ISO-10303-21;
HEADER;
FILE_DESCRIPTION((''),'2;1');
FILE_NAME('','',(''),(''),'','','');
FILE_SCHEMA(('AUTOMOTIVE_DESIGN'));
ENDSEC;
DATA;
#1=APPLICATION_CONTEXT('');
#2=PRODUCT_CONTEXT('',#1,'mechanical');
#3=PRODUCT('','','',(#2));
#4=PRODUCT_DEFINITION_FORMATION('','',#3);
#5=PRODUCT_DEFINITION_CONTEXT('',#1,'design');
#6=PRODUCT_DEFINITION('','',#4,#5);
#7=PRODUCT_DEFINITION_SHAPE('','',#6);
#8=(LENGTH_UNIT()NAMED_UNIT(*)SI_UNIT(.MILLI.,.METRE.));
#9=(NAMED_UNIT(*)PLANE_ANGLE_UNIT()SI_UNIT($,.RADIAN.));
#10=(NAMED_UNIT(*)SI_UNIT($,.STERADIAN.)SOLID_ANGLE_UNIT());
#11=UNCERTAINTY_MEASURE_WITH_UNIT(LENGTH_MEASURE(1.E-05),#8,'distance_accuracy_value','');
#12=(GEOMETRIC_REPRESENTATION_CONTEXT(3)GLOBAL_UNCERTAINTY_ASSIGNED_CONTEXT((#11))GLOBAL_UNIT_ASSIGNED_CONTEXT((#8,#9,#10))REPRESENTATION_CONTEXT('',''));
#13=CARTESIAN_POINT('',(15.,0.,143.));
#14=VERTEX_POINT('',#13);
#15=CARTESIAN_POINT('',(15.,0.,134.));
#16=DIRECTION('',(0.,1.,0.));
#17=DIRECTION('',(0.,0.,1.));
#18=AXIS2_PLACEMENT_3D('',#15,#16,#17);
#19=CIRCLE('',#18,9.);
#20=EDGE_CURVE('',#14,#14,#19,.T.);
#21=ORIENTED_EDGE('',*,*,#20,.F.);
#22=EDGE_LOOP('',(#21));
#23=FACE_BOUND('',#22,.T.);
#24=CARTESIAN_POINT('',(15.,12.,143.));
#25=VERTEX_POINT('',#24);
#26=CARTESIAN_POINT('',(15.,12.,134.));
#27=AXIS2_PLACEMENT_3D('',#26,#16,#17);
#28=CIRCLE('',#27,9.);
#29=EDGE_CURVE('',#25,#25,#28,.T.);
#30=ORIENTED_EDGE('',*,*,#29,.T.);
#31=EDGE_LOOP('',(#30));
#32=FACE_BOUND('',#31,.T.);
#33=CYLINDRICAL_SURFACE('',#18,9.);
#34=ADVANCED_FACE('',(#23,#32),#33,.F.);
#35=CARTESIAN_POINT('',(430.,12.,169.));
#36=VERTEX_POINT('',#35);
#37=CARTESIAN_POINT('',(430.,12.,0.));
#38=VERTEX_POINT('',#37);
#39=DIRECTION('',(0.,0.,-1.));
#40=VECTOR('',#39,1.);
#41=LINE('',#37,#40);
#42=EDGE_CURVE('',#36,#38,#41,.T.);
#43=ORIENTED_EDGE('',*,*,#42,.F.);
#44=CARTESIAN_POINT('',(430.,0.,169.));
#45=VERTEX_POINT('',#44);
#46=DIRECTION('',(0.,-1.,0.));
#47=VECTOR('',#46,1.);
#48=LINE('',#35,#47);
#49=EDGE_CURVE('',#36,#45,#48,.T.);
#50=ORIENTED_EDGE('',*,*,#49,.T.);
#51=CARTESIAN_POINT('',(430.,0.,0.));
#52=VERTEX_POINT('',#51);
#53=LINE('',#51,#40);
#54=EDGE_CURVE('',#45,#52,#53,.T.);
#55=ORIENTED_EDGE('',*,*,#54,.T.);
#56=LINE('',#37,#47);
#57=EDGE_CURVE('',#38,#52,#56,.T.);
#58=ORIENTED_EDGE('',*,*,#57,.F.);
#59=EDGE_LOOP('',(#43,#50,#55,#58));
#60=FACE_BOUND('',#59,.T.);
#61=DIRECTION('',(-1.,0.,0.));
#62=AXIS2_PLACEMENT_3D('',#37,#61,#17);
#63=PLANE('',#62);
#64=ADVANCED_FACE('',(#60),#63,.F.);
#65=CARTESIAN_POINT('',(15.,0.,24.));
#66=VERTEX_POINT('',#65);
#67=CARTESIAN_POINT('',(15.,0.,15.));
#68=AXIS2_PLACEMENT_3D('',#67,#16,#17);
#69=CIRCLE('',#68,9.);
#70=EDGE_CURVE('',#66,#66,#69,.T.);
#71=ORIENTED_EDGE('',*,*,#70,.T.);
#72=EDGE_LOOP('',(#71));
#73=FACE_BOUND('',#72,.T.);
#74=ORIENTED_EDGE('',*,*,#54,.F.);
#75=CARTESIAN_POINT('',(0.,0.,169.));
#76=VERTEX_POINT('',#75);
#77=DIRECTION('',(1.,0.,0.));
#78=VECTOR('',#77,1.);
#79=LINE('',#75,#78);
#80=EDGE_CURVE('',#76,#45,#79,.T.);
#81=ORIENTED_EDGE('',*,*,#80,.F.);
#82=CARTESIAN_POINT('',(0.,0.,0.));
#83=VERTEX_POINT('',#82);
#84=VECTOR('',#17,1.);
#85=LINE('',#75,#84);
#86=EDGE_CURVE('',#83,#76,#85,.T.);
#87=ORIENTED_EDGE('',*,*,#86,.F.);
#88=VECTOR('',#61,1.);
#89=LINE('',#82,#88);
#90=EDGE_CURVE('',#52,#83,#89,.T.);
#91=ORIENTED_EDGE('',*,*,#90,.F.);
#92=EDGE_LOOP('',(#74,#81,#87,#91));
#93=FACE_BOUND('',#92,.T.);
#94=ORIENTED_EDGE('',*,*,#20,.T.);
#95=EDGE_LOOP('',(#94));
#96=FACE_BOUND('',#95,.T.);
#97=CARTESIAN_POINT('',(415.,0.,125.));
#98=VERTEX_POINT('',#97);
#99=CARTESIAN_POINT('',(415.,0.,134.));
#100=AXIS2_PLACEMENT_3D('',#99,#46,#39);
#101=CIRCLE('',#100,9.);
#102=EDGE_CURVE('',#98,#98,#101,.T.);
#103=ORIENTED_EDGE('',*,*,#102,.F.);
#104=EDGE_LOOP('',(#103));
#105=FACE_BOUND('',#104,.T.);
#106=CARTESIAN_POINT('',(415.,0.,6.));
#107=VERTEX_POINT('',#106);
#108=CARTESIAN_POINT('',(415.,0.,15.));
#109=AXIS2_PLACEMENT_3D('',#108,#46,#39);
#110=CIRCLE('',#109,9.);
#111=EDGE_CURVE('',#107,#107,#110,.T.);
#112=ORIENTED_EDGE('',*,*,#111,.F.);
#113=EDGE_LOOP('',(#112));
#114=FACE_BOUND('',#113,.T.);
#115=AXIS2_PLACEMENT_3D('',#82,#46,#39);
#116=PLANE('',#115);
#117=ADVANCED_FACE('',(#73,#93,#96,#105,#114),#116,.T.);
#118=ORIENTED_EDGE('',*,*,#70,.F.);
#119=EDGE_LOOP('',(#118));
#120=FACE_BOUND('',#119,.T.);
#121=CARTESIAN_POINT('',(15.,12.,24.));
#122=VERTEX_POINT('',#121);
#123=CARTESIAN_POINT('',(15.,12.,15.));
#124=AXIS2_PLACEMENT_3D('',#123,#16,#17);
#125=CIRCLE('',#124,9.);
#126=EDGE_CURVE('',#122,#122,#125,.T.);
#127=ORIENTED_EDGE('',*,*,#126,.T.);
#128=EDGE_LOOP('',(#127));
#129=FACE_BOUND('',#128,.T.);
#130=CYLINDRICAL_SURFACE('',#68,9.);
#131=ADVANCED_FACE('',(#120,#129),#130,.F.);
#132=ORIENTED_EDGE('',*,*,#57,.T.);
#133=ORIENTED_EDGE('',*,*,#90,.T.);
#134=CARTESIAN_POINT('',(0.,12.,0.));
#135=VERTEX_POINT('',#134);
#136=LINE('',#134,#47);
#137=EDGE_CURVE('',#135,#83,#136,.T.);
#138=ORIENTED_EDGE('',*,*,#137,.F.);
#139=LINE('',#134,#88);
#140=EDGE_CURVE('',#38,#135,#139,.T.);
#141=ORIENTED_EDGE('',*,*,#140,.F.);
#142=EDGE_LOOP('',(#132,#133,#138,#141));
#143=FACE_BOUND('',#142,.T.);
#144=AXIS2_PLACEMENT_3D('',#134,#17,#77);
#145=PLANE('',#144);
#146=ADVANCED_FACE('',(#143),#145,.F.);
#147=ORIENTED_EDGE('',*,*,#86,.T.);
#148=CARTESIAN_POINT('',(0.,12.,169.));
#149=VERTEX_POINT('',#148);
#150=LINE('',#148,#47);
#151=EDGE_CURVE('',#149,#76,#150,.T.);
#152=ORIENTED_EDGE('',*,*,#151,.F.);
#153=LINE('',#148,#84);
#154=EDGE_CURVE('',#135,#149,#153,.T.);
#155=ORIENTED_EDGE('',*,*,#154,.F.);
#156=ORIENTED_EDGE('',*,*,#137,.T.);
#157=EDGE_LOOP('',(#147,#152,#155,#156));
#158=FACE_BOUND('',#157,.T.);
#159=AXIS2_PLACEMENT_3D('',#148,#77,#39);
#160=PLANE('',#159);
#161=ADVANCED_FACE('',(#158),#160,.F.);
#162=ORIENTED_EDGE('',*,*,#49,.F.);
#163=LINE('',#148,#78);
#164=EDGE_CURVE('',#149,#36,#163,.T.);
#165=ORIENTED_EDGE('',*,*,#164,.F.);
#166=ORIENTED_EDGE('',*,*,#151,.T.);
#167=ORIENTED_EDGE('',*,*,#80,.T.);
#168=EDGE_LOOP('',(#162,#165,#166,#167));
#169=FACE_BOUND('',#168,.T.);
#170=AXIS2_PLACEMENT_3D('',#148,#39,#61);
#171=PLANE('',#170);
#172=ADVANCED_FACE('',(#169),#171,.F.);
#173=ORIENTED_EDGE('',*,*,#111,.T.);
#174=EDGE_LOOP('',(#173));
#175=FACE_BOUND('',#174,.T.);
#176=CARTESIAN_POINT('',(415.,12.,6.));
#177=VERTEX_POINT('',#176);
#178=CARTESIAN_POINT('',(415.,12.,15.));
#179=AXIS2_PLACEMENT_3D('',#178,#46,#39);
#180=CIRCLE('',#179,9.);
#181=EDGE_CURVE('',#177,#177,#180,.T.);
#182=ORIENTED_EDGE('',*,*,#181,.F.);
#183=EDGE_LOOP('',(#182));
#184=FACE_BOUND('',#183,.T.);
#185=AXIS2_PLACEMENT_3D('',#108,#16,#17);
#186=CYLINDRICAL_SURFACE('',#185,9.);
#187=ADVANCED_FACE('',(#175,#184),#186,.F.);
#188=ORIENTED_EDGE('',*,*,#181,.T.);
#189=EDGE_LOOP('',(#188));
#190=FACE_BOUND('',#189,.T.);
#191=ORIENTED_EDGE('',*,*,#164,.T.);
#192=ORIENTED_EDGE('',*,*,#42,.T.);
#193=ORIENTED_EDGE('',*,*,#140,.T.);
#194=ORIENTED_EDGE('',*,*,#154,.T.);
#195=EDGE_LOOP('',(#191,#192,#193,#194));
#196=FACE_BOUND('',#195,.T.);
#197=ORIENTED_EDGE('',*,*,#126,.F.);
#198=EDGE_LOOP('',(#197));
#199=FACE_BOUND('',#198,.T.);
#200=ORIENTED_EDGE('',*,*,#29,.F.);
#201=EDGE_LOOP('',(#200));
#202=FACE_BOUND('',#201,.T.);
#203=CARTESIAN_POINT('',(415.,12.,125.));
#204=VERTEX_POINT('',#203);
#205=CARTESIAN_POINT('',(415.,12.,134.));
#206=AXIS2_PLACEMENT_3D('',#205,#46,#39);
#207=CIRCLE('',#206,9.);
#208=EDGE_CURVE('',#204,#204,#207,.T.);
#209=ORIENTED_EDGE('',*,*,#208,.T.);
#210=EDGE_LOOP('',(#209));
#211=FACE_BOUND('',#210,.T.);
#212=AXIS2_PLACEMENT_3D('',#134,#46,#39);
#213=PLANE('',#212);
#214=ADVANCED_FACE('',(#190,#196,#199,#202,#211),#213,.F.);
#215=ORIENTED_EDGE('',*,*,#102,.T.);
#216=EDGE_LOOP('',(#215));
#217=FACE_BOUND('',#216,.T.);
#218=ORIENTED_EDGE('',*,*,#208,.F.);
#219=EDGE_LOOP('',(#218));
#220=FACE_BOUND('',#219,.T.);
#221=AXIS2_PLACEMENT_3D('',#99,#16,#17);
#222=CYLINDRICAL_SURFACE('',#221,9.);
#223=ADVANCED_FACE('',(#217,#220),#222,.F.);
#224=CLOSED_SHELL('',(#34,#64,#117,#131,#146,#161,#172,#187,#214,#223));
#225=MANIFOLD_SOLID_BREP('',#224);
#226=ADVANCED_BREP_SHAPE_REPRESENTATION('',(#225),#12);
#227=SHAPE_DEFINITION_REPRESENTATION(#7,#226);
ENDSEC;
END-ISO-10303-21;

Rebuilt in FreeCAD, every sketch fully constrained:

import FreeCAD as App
import Part
import Sketcher

V = App.Vector
Q = App.Units.Quantity

doc = App.newDocument("Part")
body = doc.addObject("PartDesign::Body", "Body")

sketch1 = doc.addObject("Sketcher::SketchObject", "Sketch")
body.addObject(sketch1)
sketch1.AttachmentSupport = (doc.XZ_Plane, [""])
sketch1.MapMode = "FlatFace"
sketch1.addGeometry(Part.LineSegment(V(0, 0, 0), V(0, 169, 0)), False)
sketch1.addGeometry(Part.LineSegment(V(0, 169, 0), V(430, 169, 0)), False)
sketch1.addGeometry(Part.LineSegment(V(430, 169, 0), V(430, 0, 0)), False)
sketch1.addGeometry(Part.LineSegment(V(430, 0, 0), V(0, 0, 0)), False)
sketch1.addConstraint(Sketcher.Constraint("Coincident", 0, 2, 1, 1))
sketch1.addConstraint(Sketcher.Constraint("Coincident", 1, 2, 2, 1))
sketch1.addConstraint(Sketcher.Constraint("Coincident", 2, 2, 3, 1))
sketch1.addConstraint(Sketcher.Constraint("Coincident", 3, 2, 0, 1))
sketch1.addConstraint(Sketcher.Constraint("Vertical", 0))
sketch1.addConstraint(Sketcher.Constraint("Horizontal", 1))
sketch1.addConstraint(Sketcher.Constraint("Vertical", 2))
sketch1.addConstraint(Sketcher.Constraint("Horizontal", 3))
sketch1.addConstraint(Sketcher.Constraint("Coincident", 3, 2, -1, 1))
sketch1.addConstraint(Sketcher.Constraint("DistanceX", 1, 1, 1, 2, Q("430 mm")))
sketch1.addConstraint(Sketcher.Constraint("DistanceY", 0, 1, 0, 2, Q("169 mm")))
pad1 = doc.addObject("PartDesign::Pad", "Pad")
body.addObject(pad1)
pad1.Profile = sketch1
pad1.Length = 12
pad1.Reversed = True

sketch2 = doc.addObject("Sketcher::SketchObject", "Sketch001")
body.addObject(sketch2)
sketch2.AttachmentSupport = (doc.XZ_Plane, [""])
sketch2.MapMode = "FlatFace"
sketch2.AttachmentOffset = App.Placement(V(0, 0, -12), App.Rotation())
sketch2.addGeometry(Part.Circle(V(15, 15, 0), V(0, 0, 1), 9), False)
sketch2.addGeometry(Part.Circle(V(15, 134, 0), V(0, 0, 1), 9), False)
sketch2.addGeometry(Part.Circle(V(415, 134, 0), V(0, 0, 1), 9), False)
sketch2.addGeometry(Part.Circle(V(415, 15, 0), V(0, 0, 1), 9), False)
sketch2.addConstraint(Sketcher.Constraint("Equal", 0, 1))
sketch2.addConstraint(Sketcher.Constraint("Equal", 1, 2))
sketch2.addConstraint(Sketcher.Constraint("Equal", 2, 3))
sketch2.addConstraint(Sketcher.Constraint("Horizontal", 1, 3, 2, 3))
sketch2.addConstraint(Sketcher.Constraint("Horizontal", 0, 3, 3, 3))
sketch2.addConstraint(Sketcher.Constraint("Vertical", 0, 3, 1, 3))
sketch2.addConstraint(Sketcher.Constraint("Vertical", 2, 3, 3, 3))
sketch2.addConstraint(Sketcher.Constraint("Diameter", 0, Q("18 mm")))
sketch2.addConstraint(Sketcher.Constraint("DistanceX", -1, 1, 0, 3, Q("15 mm")))
sketch2.addConstraint(Sketcher.Constraint("DistanceY", -1, 1, 0, 3, Q("15 mm")))
sketch2.addConstraint(Sketcher.Constraint("DistanceY", -1, 1, 1, 3, Q("134 mm")))
sketch2.addConstraint(Sketcher.Constraint("DistanceX", -1, 1, 2, 3, Q("415 mm")))
pocket1 = doc.addObject("PartDesign::Pocket", "Pocket")
body.addObject(pocket1)
pocket1.Profile = sketch2
pocket1.Length = 12
pocket1.Reversed = True

doc.recompute()
